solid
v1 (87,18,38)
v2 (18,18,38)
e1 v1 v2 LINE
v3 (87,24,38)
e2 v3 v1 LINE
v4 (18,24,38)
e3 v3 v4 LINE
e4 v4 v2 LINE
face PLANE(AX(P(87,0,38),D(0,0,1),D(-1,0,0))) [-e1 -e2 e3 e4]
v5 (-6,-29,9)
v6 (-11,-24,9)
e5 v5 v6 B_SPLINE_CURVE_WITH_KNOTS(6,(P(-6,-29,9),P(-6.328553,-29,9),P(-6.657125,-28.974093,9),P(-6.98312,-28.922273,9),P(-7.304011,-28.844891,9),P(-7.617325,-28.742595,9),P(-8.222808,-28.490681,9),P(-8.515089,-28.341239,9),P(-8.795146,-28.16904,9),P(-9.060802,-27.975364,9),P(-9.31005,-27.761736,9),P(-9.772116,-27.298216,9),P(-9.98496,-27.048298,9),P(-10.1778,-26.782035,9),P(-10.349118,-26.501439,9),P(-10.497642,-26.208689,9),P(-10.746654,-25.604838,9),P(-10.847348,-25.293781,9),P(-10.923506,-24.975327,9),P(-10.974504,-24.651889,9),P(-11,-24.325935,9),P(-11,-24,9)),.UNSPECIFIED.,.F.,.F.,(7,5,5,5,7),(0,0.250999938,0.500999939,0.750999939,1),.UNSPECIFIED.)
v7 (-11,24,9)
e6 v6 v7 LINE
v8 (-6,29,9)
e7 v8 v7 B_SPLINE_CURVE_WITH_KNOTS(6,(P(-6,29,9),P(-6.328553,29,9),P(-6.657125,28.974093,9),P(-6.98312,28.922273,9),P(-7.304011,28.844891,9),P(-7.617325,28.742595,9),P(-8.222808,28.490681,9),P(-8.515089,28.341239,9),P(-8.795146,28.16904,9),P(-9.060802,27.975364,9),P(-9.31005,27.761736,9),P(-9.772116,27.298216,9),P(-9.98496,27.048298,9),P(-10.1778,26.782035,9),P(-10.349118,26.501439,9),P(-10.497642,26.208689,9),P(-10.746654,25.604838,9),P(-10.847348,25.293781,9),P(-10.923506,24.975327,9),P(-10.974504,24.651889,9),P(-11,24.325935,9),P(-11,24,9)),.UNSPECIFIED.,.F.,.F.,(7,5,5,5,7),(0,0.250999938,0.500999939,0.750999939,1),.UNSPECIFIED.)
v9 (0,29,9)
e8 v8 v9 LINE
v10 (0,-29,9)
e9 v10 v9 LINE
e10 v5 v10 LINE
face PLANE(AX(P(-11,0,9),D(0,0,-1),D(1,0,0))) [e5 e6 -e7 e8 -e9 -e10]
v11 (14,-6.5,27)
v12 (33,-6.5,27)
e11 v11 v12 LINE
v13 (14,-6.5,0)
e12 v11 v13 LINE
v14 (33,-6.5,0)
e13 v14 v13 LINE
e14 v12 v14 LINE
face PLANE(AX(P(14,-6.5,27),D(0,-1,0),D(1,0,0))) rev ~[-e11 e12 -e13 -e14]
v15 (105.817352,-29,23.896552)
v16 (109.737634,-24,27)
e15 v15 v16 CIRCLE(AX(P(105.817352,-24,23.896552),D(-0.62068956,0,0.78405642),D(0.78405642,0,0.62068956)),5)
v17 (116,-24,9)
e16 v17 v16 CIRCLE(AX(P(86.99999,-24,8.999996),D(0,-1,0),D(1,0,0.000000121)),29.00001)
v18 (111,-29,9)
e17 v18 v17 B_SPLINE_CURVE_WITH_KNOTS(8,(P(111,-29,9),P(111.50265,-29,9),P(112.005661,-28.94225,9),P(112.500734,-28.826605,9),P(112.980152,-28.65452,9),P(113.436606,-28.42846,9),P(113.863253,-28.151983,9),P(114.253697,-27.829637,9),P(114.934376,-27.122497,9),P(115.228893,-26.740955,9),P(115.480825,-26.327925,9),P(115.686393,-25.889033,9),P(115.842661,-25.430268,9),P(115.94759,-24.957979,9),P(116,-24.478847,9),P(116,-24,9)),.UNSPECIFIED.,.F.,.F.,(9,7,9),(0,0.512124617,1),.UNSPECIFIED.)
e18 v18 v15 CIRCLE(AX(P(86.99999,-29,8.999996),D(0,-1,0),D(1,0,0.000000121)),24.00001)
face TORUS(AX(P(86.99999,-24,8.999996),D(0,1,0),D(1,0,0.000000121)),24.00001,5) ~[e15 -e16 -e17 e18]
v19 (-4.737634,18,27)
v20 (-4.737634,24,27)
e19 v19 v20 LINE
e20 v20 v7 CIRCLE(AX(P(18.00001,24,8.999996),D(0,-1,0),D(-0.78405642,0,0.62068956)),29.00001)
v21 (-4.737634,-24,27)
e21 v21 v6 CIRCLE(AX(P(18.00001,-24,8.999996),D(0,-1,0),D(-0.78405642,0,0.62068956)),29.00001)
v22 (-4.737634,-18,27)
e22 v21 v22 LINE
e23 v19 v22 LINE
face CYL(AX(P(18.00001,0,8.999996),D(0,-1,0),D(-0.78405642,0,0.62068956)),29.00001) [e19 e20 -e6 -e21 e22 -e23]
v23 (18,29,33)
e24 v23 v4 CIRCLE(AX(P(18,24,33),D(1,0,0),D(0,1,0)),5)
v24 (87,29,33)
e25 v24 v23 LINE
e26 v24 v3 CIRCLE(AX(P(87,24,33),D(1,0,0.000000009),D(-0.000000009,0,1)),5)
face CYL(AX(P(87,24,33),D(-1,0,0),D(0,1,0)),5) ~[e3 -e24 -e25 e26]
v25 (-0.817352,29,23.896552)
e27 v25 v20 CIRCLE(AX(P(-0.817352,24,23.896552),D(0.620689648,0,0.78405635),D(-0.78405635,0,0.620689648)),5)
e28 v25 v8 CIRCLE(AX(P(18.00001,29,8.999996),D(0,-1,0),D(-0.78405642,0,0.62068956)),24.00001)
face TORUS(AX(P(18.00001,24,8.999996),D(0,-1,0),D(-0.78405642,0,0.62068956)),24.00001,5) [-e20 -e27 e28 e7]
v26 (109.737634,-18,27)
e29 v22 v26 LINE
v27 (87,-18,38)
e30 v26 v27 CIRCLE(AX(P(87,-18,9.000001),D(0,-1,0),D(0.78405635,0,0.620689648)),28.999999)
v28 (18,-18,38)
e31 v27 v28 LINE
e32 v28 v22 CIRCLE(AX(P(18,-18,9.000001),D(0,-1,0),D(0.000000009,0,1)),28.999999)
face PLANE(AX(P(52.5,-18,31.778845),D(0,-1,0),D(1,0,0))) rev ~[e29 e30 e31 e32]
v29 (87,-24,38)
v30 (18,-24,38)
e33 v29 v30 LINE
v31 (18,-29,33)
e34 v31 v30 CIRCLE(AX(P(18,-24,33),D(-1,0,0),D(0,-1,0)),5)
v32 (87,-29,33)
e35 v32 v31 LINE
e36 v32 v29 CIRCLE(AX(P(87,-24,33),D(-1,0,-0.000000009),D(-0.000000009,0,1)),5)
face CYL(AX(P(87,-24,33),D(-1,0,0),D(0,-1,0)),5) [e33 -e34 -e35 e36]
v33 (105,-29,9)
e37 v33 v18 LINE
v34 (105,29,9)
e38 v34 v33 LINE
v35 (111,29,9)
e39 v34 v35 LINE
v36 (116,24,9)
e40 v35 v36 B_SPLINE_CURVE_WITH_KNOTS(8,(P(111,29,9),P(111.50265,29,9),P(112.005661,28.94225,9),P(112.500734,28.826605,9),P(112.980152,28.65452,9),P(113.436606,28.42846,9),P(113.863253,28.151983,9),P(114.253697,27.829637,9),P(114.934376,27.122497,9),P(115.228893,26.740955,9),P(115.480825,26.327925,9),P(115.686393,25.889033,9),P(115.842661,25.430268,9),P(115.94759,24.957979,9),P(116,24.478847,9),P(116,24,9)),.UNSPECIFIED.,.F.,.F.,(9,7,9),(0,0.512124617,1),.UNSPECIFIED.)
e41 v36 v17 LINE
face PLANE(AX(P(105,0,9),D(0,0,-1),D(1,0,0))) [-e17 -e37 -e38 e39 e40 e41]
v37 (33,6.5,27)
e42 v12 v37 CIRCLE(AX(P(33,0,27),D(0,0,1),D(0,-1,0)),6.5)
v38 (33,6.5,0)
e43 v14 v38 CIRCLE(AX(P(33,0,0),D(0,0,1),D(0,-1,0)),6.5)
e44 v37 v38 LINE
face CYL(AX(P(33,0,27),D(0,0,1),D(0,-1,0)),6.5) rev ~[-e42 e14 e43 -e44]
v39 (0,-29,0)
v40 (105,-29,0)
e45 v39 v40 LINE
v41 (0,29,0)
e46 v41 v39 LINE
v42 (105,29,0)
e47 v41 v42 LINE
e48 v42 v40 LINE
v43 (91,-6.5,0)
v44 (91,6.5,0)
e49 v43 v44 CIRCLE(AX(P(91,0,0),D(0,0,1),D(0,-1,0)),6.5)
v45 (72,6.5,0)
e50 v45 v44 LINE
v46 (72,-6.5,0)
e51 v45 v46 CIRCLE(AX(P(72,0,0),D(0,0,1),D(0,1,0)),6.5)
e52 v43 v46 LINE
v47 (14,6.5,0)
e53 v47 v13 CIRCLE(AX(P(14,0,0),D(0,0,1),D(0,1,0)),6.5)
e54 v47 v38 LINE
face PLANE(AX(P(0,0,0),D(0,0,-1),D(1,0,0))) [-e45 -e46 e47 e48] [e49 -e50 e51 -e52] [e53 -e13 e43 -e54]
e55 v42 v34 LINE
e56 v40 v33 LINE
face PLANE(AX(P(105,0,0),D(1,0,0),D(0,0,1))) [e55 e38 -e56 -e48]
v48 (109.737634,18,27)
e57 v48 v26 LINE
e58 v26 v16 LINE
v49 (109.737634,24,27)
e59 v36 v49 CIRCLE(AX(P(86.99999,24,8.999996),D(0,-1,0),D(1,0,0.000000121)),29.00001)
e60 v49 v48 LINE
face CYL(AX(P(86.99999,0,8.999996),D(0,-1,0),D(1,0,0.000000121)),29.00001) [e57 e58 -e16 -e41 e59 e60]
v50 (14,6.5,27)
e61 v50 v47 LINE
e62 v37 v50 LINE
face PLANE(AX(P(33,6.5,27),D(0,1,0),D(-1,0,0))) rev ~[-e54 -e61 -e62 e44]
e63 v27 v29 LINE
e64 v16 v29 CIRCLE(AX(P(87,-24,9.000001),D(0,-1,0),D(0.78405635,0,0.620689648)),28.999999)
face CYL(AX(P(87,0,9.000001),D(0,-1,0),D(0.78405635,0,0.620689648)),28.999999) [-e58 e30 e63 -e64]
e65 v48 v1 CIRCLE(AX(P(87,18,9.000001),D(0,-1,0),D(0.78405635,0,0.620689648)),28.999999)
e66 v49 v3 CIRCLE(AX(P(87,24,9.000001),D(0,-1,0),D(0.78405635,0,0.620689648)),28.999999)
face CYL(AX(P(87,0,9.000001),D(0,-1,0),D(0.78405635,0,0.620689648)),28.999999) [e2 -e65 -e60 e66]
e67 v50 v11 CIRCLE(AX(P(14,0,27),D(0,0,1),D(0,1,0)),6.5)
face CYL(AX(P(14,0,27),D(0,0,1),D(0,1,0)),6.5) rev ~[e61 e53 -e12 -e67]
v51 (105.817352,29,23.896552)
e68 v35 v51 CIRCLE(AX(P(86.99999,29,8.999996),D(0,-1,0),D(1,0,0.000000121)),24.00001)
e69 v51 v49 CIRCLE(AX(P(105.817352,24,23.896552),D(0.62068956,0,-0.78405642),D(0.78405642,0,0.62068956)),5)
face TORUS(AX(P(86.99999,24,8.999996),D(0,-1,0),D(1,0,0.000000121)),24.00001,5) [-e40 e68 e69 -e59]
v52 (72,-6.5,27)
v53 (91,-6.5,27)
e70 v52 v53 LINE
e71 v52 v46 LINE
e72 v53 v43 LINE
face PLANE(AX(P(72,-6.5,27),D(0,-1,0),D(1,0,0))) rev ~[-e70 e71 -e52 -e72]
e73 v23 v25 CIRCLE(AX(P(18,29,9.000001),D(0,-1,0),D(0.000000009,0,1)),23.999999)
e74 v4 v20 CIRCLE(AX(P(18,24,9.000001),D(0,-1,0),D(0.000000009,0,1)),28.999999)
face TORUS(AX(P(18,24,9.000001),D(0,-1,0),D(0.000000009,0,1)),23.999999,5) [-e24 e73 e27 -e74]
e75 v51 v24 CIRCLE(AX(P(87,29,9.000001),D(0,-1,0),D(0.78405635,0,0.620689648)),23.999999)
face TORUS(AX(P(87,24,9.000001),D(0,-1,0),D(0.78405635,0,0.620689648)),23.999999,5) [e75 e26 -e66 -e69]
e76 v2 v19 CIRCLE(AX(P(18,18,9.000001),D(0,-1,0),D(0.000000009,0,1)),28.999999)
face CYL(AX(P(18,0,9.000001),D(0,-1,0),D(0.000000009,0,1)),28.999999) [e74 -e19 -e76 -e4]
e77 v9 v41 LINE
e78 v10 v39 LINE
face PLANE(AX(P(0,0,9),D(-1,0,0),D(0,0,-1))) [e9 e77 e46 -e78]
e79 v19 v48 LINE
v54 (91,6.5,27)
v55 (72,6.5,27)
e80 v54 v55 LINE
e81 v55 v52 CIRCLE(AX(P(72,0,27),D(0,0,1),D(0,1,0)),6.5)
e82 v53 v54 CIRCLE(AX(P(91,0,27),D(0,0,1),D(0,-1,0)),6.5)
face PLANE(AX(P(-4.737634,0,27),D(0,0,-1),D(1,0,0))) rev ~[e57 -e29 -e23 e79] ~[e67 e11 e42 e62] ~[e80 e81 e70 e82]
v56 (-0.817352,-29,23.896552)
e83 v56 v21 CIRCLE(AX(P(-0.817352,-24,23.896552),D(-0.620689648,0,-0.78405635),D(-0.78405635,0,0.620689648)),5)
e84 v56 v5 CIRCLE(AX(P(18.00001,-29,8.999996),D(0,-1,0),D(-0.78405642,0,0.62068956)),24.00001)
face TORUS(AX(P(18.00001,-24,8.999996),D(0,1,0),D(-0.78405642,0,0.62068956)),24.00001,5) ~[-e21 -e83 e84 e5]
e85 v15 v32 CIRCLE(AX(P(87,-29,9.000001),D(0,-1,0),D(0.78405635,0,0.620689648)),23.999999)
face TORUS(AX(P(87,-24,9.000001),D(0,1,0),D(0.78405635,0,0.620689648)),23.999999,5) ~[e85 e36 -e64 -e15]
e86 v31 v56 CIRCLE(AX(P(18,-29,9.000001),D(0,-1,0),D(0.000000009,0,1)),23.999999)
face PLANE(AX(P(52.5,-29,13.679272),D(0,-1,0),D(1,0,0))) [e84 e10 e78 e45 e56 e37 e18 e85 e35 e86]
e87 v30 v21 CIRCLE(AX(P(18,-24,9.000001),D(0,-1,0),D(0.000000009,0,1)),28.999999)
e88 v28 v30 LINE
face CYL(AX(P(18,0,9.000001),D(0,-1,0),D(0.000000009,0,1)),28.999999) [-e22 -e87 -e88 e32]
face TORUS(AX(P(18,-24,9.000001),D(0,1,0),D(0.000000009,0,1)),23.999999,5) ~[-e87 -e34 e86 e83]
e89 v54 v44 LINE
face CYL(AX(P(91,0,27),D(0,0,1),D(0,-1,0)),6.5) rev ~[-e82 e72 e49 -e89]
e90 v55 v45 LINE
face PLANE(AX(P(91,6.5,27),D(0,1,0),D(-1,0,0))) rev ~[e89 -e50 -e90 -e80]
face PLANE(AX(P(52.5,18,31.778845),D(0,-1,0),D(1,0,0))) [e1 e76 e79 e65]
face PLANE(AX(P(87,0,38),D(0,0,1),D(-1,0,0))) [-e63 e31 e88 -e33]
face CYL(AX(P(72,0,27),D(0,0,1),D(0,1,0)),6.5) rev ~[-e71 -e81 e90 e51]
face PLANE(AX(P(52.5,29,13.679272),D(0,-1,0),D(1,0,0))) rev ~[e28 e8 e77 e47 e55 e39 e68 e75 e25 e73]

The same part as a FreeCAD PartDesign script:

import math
import FreeCAD as App
import Part
import Sketcher
Q = App.Units.Quantity


def edges_at(feature, points):
    """Names of the edges that pass closest to the given points."""
    edges = feature.Shape.Edges
    near = lambda p: min(range(len(edges)), key=lambda i: edges[i].distToShape(Part.Vertex(*p))[0])
    return sorted({f"Edge{near(p) + 1}" for p in points})

doc = App.newDocument("Part")
params = doc.addObject("Spreadsheet::Sheet", "Params")
for row, (alias, value) in enumerate([
    ("sketch1_radius", "28.999999 mm"),
    ("sketch1_width", "105 mm"),
    ("sketch1_width2", "11 mm"),
    ("sketch1_width3", "69 mm"),
    ("sketch1_height", "9 mm"),
    ("pad1_length", "58 mm"),
    ("sketch2_radius", "28.999999 mm"),
    ("sketch2_width", "69 mm"),
    ("pocket1_length", "36 mm"),
    ("sketch3_radius", "6.5 mm"),
    ("sketch3_width", "19 mm"),
    ("fillet_radius", "5 mm"),
], start=1):
    params.set(f"A{row}", alias)
    params.set(f"B{row}", "=" + value)
    params.setAlias(f"B{row}", alias)

body = doc.addObject("PartDesign::Body", "Body")

sketch1 = body.newObject("Sketcher::SketchObject", "Sketch")
sketch1.AttachmentSupport = (doc.getObject("XZ_Plane"), [""])
sketch1.MapMode = "FlatFace"
sketch1.addGeometry([
    Part.LineSegment(App.Vector(0, 9, 0), App.Vector(0, 0, 0)),
    Part.LineSegment(App.Vector(0, 0, 0), App.Vector(105, 0, 0)),
    Part.LineSegment(App.Vector(105, 0, 0), App.Vector(105, 9, 0)),
    Part.LineSegment(App.Vector(105, 9, 0), App.Vector(116, 9, 0)),
    Part.ArcOfCircle(Part.Circle(App.Vector(87, 9, 0), App.Vector(0, 0, 1), 29), math.radians(0), math.radians(38)),
    Part.ArcOfCircle(Part.Circle(App.Vector(87, 9, 0), App.Vector(0, 0, 1), 29), math.radians(38), math.radians(90)),
    Part.LineSegment(App.Vector(87, 38, 0), App.Vector(18, 38, 0)),
    Part.ArcOfCircle(Part.Circle(App.Vector(18, 9, 0), App.Vector(0, 0, 1), 29), math.radians(90), math.radians(142)),
    Part.ArcOfCircle(Part.Circle(App.Vector(18, 9, 0), App.Vector(0, 0, 1), 29), math.radians(142), math.radians(180)),
    Part.LineSegment(App.Vector(-11, 9, 0), App.Vector(0, 9, 0)),
], False)
sketch1.addConstraint([
    Sketcher.Constraint("Coincident", 0, 2, 1, 1),
    Sketcher.Constraint("Coincident", 1, 2, 2, 1),
    Sketcher.Constraint("Coincident", 2, 2, 3, 1),
    Sketcher.Constraint("Coincident", 3, 2, 4, 1),
    Sketcher.Constraint("Tangent", 4, 2, 5, 1),
    Sketcher.Constraint("Tangent", 5, 2, 6, 1),
    Sketcher.Constraint("Tangent", 6, 2, 7, 1),
    Sketcher.Constraint("Tangent", 7, 2, 8, 1),
    Sketcher.Constraint("Coincident", 8, 2, 9, 1),
    Sketcher.Constraint("Coincident", 9, 2, 0, 1),
    Sketcher.Constraint("Vertical", 0),
    Sketcher.Constraint("Horizontal", 1),
    Sketcher.Constraint("Vertical", 2),
    Sketcher.Constraint("Horizontal", 3),
    Sketcher.Constraint("Horizontal", 6),
    Sketcher.Constraint("Horizontal", 9),
    Sketcher.Constraint("Coincident", 0, 2, -1, 1),
    Sketcher.Constraint("Equal", 5, 7),
    Sketcher.Constraint("Equal", 4, 8),
    Sketcher.Constraint("Horizontal", 7, 3, 2, 2),
    Sketcher.Constraint("Horizontal", 4, 2, 7, 2),
    Sketcher.Constraint("Horizontal", 3, 2, 8, 2),
    Sketcher.Constraint("Equal", 3, 9),
    Sketcher.Constraint("Radius", 5, Q("28.999999 mm")),
    Sketcher.Constraint("DistanceX", 1, 1, 1, 2, Q("105 mm")),
    Sketcher.Constraint("DistanceX", 3, 1, 3, 2, Q("11 mm")),
    Sketcher.Constraint("DistanceX", 6, 2, 6, 1, Q("69 mm")),
    Sketcher.Constraint("DistanceY", 0, 2, 0, 1, Q("9 mm")),
    Sketcher.Constraint("DistanceY", -1, 1, 4, 2, Q("27 mm")),
])
sketch1.setExpression("Constraints[23]", "Params.sketch1_radius")
sketch1.setExpression("Constraints[24]", "Params.sketch1_width")
sketch1.setExpression("Constraints[25]", "Params.sketch1_width2")
sketch1.setExpression("Constraints[26]", "Params.sketch1_width3")
sketch1.setExpression("Constraints[27]", "Params.sketch1_height")
pad1 = body.newObject("PartDesign::Pad", "Pad")
pad1.Profile = sketch1
pad1.setExpression("Length", "Params.pad1_length")
pad1.Midplane = True

sketch2 = body.newObject("Sketcher::SketchObject", "Sketch001")
sketch2.AttachmentSupport = (doc.getObject("XZ_Plane"), [""])
sketch2.MapMode = "FlatFace"
sketch2.addGeometry([
    Part.ArcOfCircle(Part.Circle(App.Vector(18, 9, 0), App.Vector(0, 0, 1), 29), math.radians(90), math.radians(142)),
    Part.LineSegment(App.Vector(-5, 27, 0), App.Vector(110, 27, 0)),
    Part.ArcOfCircle(Part.Circle(App.Vector(87, 9, 0), App.Vector(0, 0, 1), 29), math.radians(38), math.radians(90)),
    Part.LineSegment(App.Vector(87, 38, 0), App.Vector(18, 38, 0)),
], False)
sketch2.addConstraint([
    Sketcher.Constraint("Coincident", 0, 2, 1, 1),
    Sketcher.Constraint("Coincident", 1, 2, 2, 1),
    Sketcher.Constraint("Tangent", 2, 2, 3, 1),
    Sketcher.Constraint("Tangent", 3, 2, 0, 1),
    Sketcher.Constraint("Horizontal", 1),
    Sketcher.Constraint("Horizontal", 3),
    Sketcher.Constraint("Equal", 0, 2),
    Sketcher.Constraint("Radius", 0, Q("28.999999 mm")),
    Sketcher.Constraint("DistanceX", 3, 2, 3, 1, Q("69 mm")),
    Sketcher.Constraint("DistanceX", -1, 1, 0, 3, Q("18 mm")),
    Sketcher.Constraint("DistanceY", -1, 1, 0, 3, Q("9.000001 mm")),
    Sketcher.Constraint("DistanceY", -1, 1, 0, 2, Q("27 mm")),
])
sketch2.setExpression("Constraints[7]", "Params.sketch2_radius")
sketch2.setExpression("Constraints[8]", "Params.sketch2_width")
pocket1 = body.newObject("PartDesign::Pocket", "Pocket")
pocket1.Profile = sketch2
pocket1.setExpression("Length", "Params.pocket1_length")
pocket1.Midplane = True

sketch3 = body.newObject("Sketcher::SketchObject", "Sketch002")
sketch3.AttachmentSupport = (doc.getObject("XY_Plane"), [""])
sketch3.MapMode = "FlatFace"
sketch3.AttachmentOffset = App.Placement(App.Vector(0, 0, 27), App.Rotation())
sketch3.addGeometry([
    Part.ArcOfCircle(Part.Circle(App.Vector(14, 0, 0), App.Vector(0, 0, 1), 6), math.radians(90), math.radians(270)),
    Part.LineSegment(App.Vector(14, -6, 0), App.Vector(33, -6, 0)),
    Part.ArcOfCircle(Part.Circle(App.Vector(33, 0, 0), App.Vector(0, 0, 1), 6), math.radians(-90), math.radians(90)),
    Part.LineSegment(App.Vector(33, 6, 0), App.Vector(14, 6, 0)),
    Part.ArcOfCircle(Part.Circle(App.Vector(72, 0, 0), App.Vector(0, 0, 1), 6), math.radians(90), math.radians(270)),
    Part.LineSegment(App.Vector(72, -6, 0), App.Vector(91, -6, 0)),
    Part.ArcOfCircle(Part.Circle(App.Vector(91, 0, 0), App.Vector(0, 0, 1), 6), math.radians(-90), math.radians(90)),
    Part.LineSegment(App.Vector(91, 6, 0), App.Vector(72, 6, 0)),
], False)
sketch3.addConstraint([
    Sketcher.Constraint("Tangent", 0, 2, 1, 1),
    Sketcher.Constraint("Tangent", 1, 2, 2, 1),
    Sketcher.Constraint("Tangent", 2, 2, 3, 1),
    Sketcher.Constraint("Tangent", 3, 2, 0, 1),
    Sketcher.Constraint("Tangent", 4, 2, 5, 1),
    Sketcher.Constraint("Tangent", 5, 2, 6, 1),
    Sketcher.Constraint("Tangent", 6, 2, 7, 1),
    Sketcher.Constraint("Tangent", 7, 2, 4, 1),
    Sketcher.Constraint("Horizontal", 1),
    Sketcher.Constraint("Horizontal", 3),
    Sketcher.Constraint("Horizontal", 5),
    Sketcher.Constraint("Horizontal", 7),
    Sketcher.Constraint("Equal", 2, 4),
    Sketcher.Constraint("PointOnObject", 0, 3, -1),
    Sketcher.Constraint("PointOnObject", 4, 3, -1),
    Sketcher.Constraint("Equal", 3, 5),
    Sketcher.Constraint("Radius", 0, Q("6.5 mm")),
    Sketcher.Constraint("DistanceX", 1, 1, 1, 2, Q("19 mm")),
    Sketcher.Constraint("DistanceX", -1, 1, 0, 3, Q("14 mm")),
    Sketcher.Constraint("DistanceX", -1, 1, 4, 3, Q("72 mm")),
])
sketch3.setExpression("Constraints[16]", "Params.sketch3_radius")
sketch3.setExpression("Constraints[17]", "Params.sketch3_width")
pocket2 = body.newObject("PartDesign::Pocket", "Pocket001")
pocket2.Profile = sketch3
pocket2.Type = "ThroughAll"
doc.recompute()

fillet = body.newObject("PartDesign::Fillet", "Fillet")
fillet.Base = (pocket2, edges_at(pocket2, [(99.629, -29, 35.106), (99.629, 29, 35.106)]))
fillet.setExpression("Radius", "Params.fillet_radius")

doc.recompute()
